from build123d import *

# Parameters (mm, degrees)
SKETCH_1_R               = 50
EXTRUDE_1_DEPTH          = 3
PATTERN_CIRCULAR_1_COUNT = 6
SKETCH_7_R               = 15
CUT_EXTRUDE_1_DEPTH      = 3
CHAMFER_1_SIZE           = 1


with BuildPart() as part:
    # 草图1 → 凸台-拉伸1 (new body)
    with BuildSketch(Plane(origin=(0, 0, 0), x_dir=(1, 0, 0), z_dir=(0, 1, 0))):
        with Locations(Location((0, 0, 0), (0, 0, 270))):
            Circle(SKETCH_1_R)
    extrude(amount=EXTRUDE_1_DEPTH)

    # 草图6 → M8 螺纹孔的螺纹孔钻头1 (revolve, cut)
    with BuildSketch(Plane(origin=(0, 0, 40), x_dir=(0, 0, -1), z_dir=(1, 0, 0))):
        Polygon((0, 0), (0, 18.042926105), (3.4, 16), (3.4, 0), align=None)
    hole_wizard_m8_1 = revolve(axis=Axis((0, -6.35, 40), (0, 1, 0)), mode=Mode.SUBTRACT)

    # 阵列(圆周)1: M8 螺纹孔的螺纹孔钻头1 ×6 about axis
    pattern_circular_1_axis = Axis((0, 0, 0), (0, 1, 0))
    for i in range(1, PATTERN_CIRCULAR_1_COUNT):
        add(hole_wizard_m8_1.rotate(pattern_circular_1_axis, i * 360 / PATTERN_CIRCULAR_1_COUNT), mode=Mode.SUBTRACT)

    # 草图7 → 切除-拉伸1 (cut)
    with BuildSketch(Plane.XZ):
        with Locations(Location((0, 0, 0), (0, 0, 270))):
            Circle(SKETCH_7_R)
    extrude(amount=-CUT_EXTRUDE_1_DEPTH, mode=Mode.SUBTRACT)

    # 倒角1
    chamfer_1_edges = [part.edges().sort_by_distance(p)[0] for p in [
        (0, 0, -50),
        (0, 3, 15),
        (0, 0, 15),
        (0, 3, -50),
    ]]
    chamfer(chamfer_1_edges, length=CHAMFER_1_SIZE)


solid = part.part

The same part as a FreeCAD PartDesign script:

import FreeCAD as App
import Part
import Sketcher
Q = App.Units.Quantity


def edges_at(feature, points):
    """Names of the edges that pass closest to the given points."""
    edges = feature.Shape.Edges
    near = lambda p: min(range(len(edges)), key=lambda i: edges[i].distToShape(Part.Vertex(*p))[0])
    return sorted({f"Edge{near(p) + 1}" for p in points})

doc = App.newDocument("Part")
params = doc.addObject("Spreadsheet::Sheet", "Params")
for row, (alias, value) in enumerate([
    ("sketch1_diameter", "100 mm"),
    ("pad1_length", "3 mm"),
    ("sketch2_width", "16 mm"),
    ("sketch2_height", "3.4 mm"),
    ("groove_angle", "360 deg"),
    ("sketch3_diameter", "30 mm"),
    ("pocket1_length", "3 mm"),
    ("chamfer_size", "1 mm"),
], start=1):
    params.set(f"A{row}", alias)
    params.set(f"B{row}", "=" + value)
    params.setAlias(f"B{row}", alias)

body = doc.addObject("PartDesign::Body", "Body")

# Sketch on XZ plane
sketch1 = body.newObject("Sketcher::SketchObject", "Sketch")
sketch1.AttachmentSupport = (doc.getObject("XZ_Plane"), [""])
sketch1.MapMode = "FlatFace"
sketch1.addGeometry(Part.Circle(App.Vector(0, 0, 0), App.Vector(0, 0, 1), 50), False)
sketch1.addConstraint(Sketcher.Constraint("Coincident", 0, 3, -1, 1))
sketch1.addConstraint(Sketcher.Constraint("Diameter", 0, Q("100 mm")))
sketch1.setExpression("Constraints[1]", "Params.sketch1_diameter")
pad1 = body.newObject("PartDesign::Pad", "Pad")
pad1.Profile = sketch1
pad1.setExpression("Length", "Params.pad1_length")
pad1.Reversed = True

# Sketch on YZ plane
sketch2 = body.newObject("Sketcher::SketchObject", "Sketch001")
sketch2.AttachmentSupport = (doc.getObject("YZ_Plane"), [""])
sketch2.MapMode = "FlatFace"
sketch2.addGeometry(Part.LineSegment(App.Vector(18.042926, 40, 0), App.Vector(0, 40, 0)), False)
sketch2.addGeometry(Part.LineSegment(App.Vector(0, 40, 0), App.Vector(0, 36.6, 0)), False)
sketch2.addGeometry(Part.LineSegment(App.Vector(0, 36.6, 0), App.Vector(16, 36.6, 0)), False)
sketch2.addGeometry(Part.LineSegment(App.Vector(16, 36.6, 0), App.Vector(18.042926, 40, 0)), False)
sketch2.addGeometry(Part.LineSegment(App.Vector(0, 40, 0), App.Vector(18.042926, 40, 0)), True)  # axis
sketch2.addConstraint(Sketcher.Constraint("Coincident", 0, 2, 1, 1))
sketch2.addConstraint(Sketcher.Constraint("Coincident", 1, 2, 2, 1))
sketch2.addConstraint(Sketcher.Constraint("Coincident", 2, 2, 3, 1))
sketch2.addConstraint(Sketcher.Constraint("Coincident", 3, 2, 0, 1))
sketch2.addConstraint(Sketcher.Constraint("Horizontal", 0))
sketch2.addConstraint(Sketcher.Constraint("Vertical", 1))
sketch2.addConstraint(Sketcher.Constraint("Horizontal", 2))
sketch2.addConstraint(Sketcher.Constraint("Horizontal", 4))
sketch2.addConstraint(Sketcher.Constraint("Coincident", 4, 1, 0, 2))
sketch2.addConstraint(Sketcher.Constraint("PointOnObject", 0, 2, -2))
sketch2.addConstraint(Sketcher.Constraint("Equal", 0, 4))
sketch2.addConstraint(Sketcher.Constraint("DistanceX", 2, 1, 2, 2, Q("16 mm")))
sketch2.addConstraint(Sketcher.Constraint("Angle", 3, Q("59 deg")))
sketch2.addConstraint(Sketcher.Constraint("DistanceY", 1, 2, 1, 1, Q("3.4 mm")))
sketch2.addConstraint(Sketcher.Constraint("DistanceY", -1, 1, 0, 2, Q("40 mm")))
sketch2.setExpression("Constraints[11]", "Params.sketch2_width")
sketch2.setExpression("Constraints[13]", "Params.sketch2_height")
groove = body.newObject("PartDesign::Groove", "Groove")
groove.Profile = sketch2
groove.ReferenceAxis = (sketch2, ["Axis0"])
groove.setExpression("Angle", "Params.groove_angle")
doc.recompute()

polarpattern = body.newObject("PartDesign::PolarPattern", "PolarPattern")
polarpattern.Originals = [groove]
polarpattern.Axis = (doc.getObject("Y_Axis"), [""])
polarpattern.Angle = 360
polarpattern.Occurrences = 6
body.Tip = polarpattern

# Sketch on XZ plane
sketch3 = body.newObject("Sketcher::SketchObject", "Sketch002")
sketch3.AttachmentSupport = (doc.getObject("XZ_Plane"), [""])
sketch3.MapMode = "FlatFace"
sketch3.addGeometry(Part.Circle(App.Vector(0, 0, 0), App.Vector(0, 0, 1), 15), False)
sketch3.addConstraint(Sketcher.Constraint("Coincident", 0, 3, -1, 1))
sketch3.addConstraint(Sketcher.Constraint("Diameter", 0, Q("30 mm")))
sketch3.setExpression("Constraints[1]", "Params.sketch3_diameter")
pocket1 = body.newObject("PartDesign::Pocket", "Pocket")
pocket1.Profile = sketch3
pocket1.setExpression("Length", "Params.pocket1_length")
doc.recompute()

chamfer = body.newObject("PartDesign::Chamfer", "Chamfer")
chamfer.Base = (pocket1, edges_at(pocket1, [
    (0, 0, -50),
    (0, 3, 15),
    (0, 0, 15),
    (0, 3, -50),
]))
chamfer.setExpression("Size", "Params.chamfer_size")

doc.recompute()
